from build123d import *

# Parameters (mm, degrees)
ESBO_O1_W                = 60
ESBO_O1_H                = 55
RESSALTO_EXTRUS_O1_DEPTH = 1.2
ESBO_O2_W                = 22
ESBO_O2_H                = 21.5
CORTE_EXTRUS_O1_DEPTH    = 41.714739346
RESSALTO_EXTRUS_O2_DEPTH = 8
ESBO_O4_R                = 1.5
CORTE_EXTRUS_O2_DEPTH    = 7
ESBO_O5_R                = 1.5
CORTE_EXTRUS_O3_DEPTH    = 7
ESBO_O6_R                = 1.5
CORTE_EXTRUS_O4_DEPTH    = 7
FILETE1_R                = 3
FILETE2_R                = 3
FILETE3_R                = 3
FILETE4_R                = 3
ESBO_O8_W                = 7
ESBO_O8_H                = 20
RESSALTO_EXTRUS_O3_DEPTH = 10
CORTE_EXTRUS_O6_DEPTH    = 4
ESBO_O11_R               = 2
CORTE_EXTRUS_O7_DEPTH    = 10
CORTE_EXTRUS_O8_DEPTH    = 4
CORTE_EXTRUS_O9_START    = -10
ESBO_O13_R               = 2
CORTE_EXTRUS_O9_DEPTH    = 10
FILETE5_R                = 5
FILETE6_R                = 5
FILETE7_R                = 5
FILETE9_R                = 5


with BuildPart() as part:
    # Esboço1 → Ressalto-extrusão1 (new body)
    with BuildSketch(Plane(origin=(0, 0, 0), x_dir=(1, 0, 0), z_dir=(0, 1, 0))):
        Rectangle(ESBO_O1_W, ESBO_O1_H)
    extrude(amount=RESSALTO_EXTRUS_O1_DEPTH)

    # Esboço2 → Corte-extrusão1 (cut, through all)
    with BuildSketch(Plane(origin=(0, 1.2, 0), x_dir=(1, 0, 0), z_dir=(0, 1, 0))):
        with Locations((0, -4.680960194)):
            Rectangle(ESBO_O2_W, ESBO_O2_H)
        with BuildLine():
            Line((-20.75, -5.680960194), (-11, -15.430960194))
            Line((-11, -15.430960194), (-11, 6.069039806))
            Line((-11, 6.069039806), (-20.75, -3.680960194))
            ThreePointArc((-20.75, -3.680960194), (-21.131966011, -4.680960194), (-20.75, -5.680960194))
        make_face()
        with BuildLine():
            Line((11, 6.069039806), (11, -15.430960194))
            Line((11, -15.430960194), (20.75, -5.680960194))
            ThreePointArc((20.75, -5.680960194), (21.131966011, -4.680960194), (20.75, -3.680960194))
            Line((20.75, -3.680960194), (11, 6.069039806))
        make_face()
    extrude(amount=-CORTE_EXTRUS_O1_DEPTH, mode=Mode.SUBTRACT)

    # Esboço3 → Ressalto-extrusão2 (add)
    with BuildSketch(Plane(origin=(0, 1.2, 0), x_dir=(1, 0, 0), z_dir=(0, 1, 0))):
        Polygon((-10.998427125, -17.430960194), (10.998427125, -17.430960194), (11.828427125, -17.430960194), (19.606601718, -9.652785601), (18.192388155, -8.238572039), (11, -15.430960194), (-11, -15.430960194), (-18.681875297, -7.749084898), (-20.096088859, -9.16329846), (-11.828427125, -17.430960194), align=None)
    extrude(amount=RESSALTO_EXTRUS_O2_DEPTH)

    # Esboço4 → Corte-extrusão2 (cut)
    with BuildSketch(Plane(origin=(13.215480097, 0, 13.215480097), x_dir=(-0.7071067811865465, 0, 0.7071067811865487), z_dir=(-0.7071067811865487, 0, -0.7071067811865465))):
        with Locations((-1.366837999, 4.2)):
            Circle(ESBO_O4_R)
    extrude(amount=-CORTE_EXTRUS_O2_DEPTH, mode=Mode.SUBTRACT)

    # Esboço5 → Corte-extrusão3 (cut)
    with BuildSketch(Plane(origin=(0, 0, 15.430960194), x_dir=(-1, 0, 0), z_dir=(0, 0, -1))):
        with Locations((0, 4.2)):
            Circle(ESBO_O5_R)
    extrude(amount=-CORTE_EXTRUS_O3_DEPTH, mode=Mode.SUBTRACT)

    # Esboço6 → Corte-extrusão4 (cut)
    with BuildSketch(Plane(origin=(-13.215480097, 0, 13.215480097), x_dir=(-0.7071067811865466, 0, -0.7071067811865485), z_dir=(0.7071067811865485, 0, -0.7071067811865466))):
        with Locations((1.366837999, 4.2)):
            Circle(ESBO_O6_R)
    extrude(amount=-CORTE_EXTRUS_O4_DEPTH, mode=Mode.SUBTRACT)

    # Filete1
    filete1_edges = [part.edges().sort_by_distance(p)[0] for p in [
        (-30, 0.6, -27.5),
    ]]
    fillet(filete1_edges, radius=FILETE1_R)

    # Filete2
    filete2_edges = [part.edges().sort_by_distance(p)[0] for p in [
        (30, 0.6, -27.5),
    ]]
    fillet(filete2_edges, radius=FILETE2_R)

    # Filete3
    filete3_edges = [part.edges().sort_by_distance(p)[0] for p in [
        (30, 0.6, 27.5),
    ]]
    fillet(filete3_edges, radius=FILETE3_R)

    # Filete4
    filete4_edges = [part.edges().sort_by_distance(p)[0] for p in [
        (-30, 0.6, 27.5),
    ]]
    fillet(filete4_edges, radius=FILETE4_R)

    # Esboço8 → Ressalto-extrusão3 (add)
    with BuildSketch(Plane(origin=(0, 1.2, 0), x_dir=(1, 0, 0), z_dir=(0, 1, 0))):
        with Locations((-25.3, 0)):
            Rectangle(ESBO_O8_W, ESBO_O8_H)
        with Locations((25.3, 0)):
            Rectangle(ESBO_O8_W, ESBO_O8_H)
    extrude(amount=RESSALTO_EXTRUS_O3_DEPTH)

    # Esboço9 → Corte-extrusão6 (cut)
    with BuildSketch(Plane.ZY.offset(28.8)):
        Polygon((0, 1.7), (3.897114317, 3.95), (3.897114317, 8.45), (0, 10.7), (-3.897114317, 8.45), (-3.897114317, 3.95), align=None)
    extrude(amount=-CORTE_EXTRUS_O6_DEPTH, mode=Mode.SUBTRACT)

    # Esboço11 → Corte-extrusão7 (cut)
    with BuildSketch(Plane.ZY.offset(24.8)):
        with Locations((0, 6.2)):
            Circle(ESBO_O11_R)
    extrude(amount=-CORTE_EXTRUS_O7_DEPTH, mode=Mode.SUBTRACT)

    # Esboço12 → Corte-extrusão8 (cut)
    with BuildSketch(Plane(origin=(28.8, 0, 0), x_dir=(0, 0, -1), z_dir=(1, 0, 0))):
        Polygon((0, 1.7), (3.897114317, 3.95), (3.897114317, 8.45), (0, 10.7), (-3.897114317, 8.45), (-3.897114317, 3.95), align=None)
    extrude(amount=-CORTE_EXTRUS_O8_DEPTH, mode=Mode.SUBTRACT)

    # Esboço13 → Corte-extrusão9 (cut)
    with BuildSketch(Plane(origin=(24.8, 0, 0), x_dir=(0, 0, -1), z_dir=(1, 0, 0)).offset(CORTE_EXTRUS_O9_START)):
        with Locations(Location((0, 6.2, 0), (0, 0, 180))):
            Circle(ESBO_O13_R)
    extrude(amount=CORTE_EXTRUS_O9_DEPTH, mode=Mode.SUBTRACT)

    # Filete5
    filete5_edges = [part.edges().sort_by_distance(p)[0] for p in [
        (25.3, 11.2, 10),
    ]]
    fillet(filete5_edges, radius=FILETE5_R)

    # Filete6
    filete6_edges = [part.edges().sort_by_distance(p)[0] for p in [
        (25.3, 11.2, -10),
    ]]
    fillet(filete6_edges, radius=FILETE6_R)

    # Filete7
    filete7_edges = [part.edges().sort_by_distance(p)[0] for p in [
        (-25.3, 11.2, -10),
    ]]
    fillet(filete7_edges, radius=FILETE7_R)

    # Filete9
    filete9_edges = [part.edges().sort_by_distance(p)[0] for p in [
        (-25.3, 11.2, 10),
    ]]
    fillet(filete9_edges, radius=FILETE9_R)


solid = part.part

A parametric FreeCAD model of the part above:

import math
import FreeCAD as App
import Part
import Sketcher
Q = App.Units.Quantity


def edges_at(feature, points):
    """Names of the edges that pass closest to the given points."""
    edges = feature.Shape.Edges
    near = lambda p: min(range(len(edges)), key=lambda i: edges[i].distToShape(Part.Vertex(*p))[0])
    return sorted({f"Edge{near(p) + 1}" for p in points})


def add_polygon(sketch, points):
    """Adds a closed chain of lines whose ends are joined by coincident constraints."""
    first, n = sketch.GeometryCount, len(points)
    for a, b in zip(points, points[1:] + points[:1]):
        sketch.addGeometry(Part.LineSegment(App.Vector(*a, 0), App.Vector(*b, 0)), False)
    for i in range(n):
        sketch.addConstraint(Sketcher.Constraint("Coincident", first + i, 2, first + (i + 1) % n, 1))

doc = App.newDocument("Part")
body = doc.addObject("PartDesign::Body", "Body")

# Sketch on XZ plane
sketch1 = body.newObject("Sketcher::SketchObject", "Sketch")
sketch1.AttachmentSupport = (doc.getObject("XZ_Plane"), [""])
sketch1.MapMode = "FlatFace"
add_polygon(sketch1, [(-30, -27.5), (-30, 27.5), (30, 27.5), (30, -27.5)])  # lines 0-3
sketch1.addConstraint([
    Sketcher.Constraint("Vertical", 0),
    Sketcher.Constraint("Horizontal", 1),
    Sketcher.Constraint("Vertical", 2),
    Sketcher.Constraint("Horizontal", 3),
    Sketcher.Constraint("Symmetric", 0, 2, 2, 2, -1, 1),
    Sketcher.Constraint("DistanceX", 1, 1, 1, 2, 60.0),
    Sketcher.Constraint("DistanceY", 0, 1, 0, 2, 55.0),
])
pad1 = body.newObject("PartDesign::Pad", "Pad")
pad1.Profile = sketch1
pad1.Length = 1.2
pad1.Reversed = True

# Sketch on XZ plane
sketch2 = body.newObject("Sketcher::SketchObject", "Sketch001")
sketch2.AttachmentSupport = (doc.getObject("XZ_Plane"), [""])
sketch2.MapMode = "FlatFace"
sketch2.AttachmentOffset = App.Placement(App.Vector(0, 0, -1.2), App.Rotation())
sketch2.addGeometry([
    Part.LineSegment(App.Vector(-11, 15.43096, 0), App.Vector(11, 15.43096, 0)),  # 0
    Part.LineSegment(App.Vector(11, 15.43096, 0), App.Vector(20.75, 5.68096, 0)),  # 1
    Part.ArcOfCircle(Part.Circle(App.Vector(19.631966, 4.68096, 0), App.Vector(0, 0, 1), 1.5), math.radians(-41.810315), math.radians(41.810315)),  # 2
    Part.LineSegment(App.Vector(20.75, 3.68096, 0), App.Vector(11, -6.06904, 0)),  # 3
    Part.LineSegment(App.Vector(11, -6.06904, 0), App.Vector(-11, -6.06904, 0)),  # 4
    Part.LineSegment(App.Vector(-11, -6.06904, 0), App.Vector(-20.75, 3.68096, 0)),  # 5
    Part.ArcOfCircle(Part.Circle(App.Vector(-19.631966, 4.68096, 0), App.Vector(0, 0, 1), 1.5), math.radians(138.189685), math.radians(221.810315)),  # 6
    Part.LineSegment(App.Vector(-20.75, 5.68096, 0), App.Vector(-11, 15.43096, 0)),  # 7
], False)
sketch2.addConstraint([
    Sketcher.Constraint("Coincident", 0, 2, 1, 1),
    Sketcher.Constraint("Coincident", 1, 2, 2, 2),
    Sketcher.Constraint("Coincident", 2, 1, 3, 1),
    Sketcher.Constraint("Coincident", 3, 2, 4, 1),
    Sketcher.Constraint("Coincident", 4, 2, 5, 1),
    Sketcher.Constraint("Coincident", 5, 2, 6, 2),
    Sketcher.Constraint("Coincident", 6, 1, 7, 1),
    Sketcher.Constraint("Coincident", 7, 2, 0, 1),
    Sketcher.Constraint("Horizontal", 0),
    Sketcher.Constraint("Horizontal", 4),
    Sketcher.Constraint("Equal", 2, 6),
    Sketcher.Constraint("Symmetric", 2, 3, 6, 3, -2),
    Sketcher.Constraint("Perpendicular", 1, 3),
    Sketcher.Constraint("Perpendicular", 3, 5),
    Sketcher.Constraint("Perpendicular", 5, 7),
    Sketcher.Constraint("Horizontal", 2, 1, 5, 2),
    Sketcher.Constraint("Horizontal", 1, 2, 6, 1),
    Sketcher.Constraint("Vertical", 1, 2, 2, 1),
    Sketcher.Constraint("Vertical", 0, 2, 3, 2),
    Sketcher.Constraint("Vertical", 4, 2, 7, 2),
    Sketcher.Constraint("Radius", 2, 1.5),
    Sketcher.Constraint("DistanceX", 0, 1, 0, 2, 22.0),
    Sketcher.Constraint("DistanceY", 2, 3, 1, 2, 1.0),
    Sketcher.Constraint("DistanceY", 3, 2, 0, 2, 21.5),
    Sketcher.Constraint("DistanceY", -1, 1, 2, 3, 4.68096),
])
pocket1 = body.newObject("PartDesign::Pocket", "Pocket")
pocket1.Profile = sketch2
pocket1.Type = "ThroughAll"
pocket1.Reversed = True

# Sketch on XZ plane
sketch3 = body.newObject("Sketcher::SketchObject", "Sketch002")
sketch3.AttachmentSupport = (doc.getObject("XZ_Plane"), [""])
sketch3.MapMode = "FlatFace"
sketch3.AttachmentOffset = App.Placement(App.Vector(0, 0, -1.2), App.Rotation())
add_polygon(sketch3, [(11.828427, 17.43096), (19.606602, 9.652786), (18.192388, 8.238572), (11, 15.43096), (-11, 15.43096), (-18.681875, 7.749085), (-20.096089, 9.163298), (-11.828427, 17.43096)])  # lines 0-7
sketch3.addConstraint([
    Sketcher.Constraint("Horizontal", 3),
    Sketcher.Constraint("Horizontal", 7),
    Sketcher.Constraint("Perpendicular", 0, 1),
    Sketcher.Constraint("Perpendicular", 1, 2),
    Sketcher.Constraint("Perpendicular", 2, 4),
    Sketcher.Constraint("Perpendicular", 4, 5),
    Sketcher.Constraint("Perpendicular", 5, 6),
    Sketcher.Constraint("Equal", 1, 5),
    Sketcher.Constraint("DistanceX", 3, 2, 3, 1, 22.0),
    Sketcher.Constraint("Angle", 0, Q("-45 deg")),
    Sketcher.Constraint("Distance", 0, 11.0),
    Sketcher.Constraint("Distance", 1, 2.0),
    Sketcher.Constraint("DistanceX", -1, 1, 2, 2, 11.0),
    Sketcher.Constraint("DistanceY", 3, 2, 6, 2, 2.0),
    Sketcher.Constraint("DistanceY", -1, 1, 5, 2, 9.163298),
    Sketcher.Constraint("DistanceY", 4, 2, 0, 2, 1.903701),
])
pad2 = body.newObject("PartDesign::Pad", "Pad001")
pad2.Profile = sketch3
pad2.Length = 8
pad2.Reversed = True

# Sketch on an angled plane
sketch4 = body.newObject("Sketcher::SketchObject", "Sketch003")
sketch4.Placement = App.Placement(App.Vector(13.21548, 0, 13.21548), App.Rotation(App.Vector(-0.707106781, 0, 0.707106781), App.Vector(0, 0.999999999, 0), App.Vector(-0.707106781, 0, -0.707106781), "ZXY"))
sketch4.addGeometry(Part.Circle(App.Vector(-1.366838, 4.2, 0), App.Vector(0, 0, 1), 1.5), False)
sketch4.addConstraint([
    Sketcher.Constraint("Diameter", 0, 3.0),
    Sketcher.Constraint("DistanceY", -1, 1, 0, 3, 4.2),
    Sketcher.Constraint("DistanceX", 0, 3, -1, 1, 1.366838),
])
pocket2 = body.newObject("PartDesign::Pocket", "Pocket001")
pocket2.Profile = sketch4
pocket2.Length = 7

# Sketch on XY plane
sketch5 = body.newObject("Sketcher::SketchObject", "Sketch004")
sketch5.AttachmentSupport = (doc.getObject("XY_Plane"), [""])
sketch5.MapMode = "FlatFace"
sketch5.AttachmentOffset = App.Placement(App.Vector(0, 0, 15.43096), App.Rotation())
sketch5.addGeometry(Part.Circle(App.Vector(0, 4.2, 0), App.Vector(0, 0, 1), 1.5), False)
sketch5.addConstraint([
    Sketcher.Constraint("PointOnObject", 0, 3, -2),
    Sketcher.Constraint("Diameter", 0, 3.0),
    Sketcher.Constraint("DistanceY", -1, 1, 0, 3, 4.2),
])
pocket3 = body.newObject("PartDesign::Pocket", "Pocket002")
pocket3.Profile = sketch5
pocket3.Length = 7
pocket3.Reversed = True

# Sketch on an angled plane
sketch6 = body.newObject("Sketcher::SketchObject", "Sketch005")
sketch6.Placement = App.Placement(App.Vector(-13.21548, 0, 13.21548), App.Rotation(App.Vector(-0.707106781, 0, -0.707106781), App.Vector(0, 0.999999999, 0), App.Vector(0.707106781, 0, -0.707106781), "ZXY"))
sketch6.addGeometry(Part.Circle(App.Vector(1.366838, 4.2, 0), App.Vector(0, 0, 1), 1.5), False)
sketch6.addConstraint([
    Sketcher.Constraint("Diameter", 0, 3.0),
    Sketcher.Constraint("DistanceY", -1, 1, 0, 3, 4.2),
    Sketcher.Constraint("DistanceX", -1, 1, 0, 3, 1.366838),
])
pocket4 = body.newObject("PartDesign::Pocket", "Pocket003")
pocket4.Profile = sketch6
pocket4.Length = 7
doc.recompute()

fillet = body.newObject("PartDesign::Fillet", "Fillet")
fillet.Base = (pocket4, edges_at(pocket4, [(-30, 0.6, -27.5)]))
fillet.Radius = 3
doc.recompute()

fillet2 = body.newObject("PartDesign::Fillet", "Fillet001")
fillet2.Base = (fillet, edges_at(fillet, [(30, 0.6, -27.5)]))
fillet2.Radius = 3
doc.recompute()

fillet3 = body.newObject("PartDesign::Fillet", "Fillet002")
fillet3.Base = (fillet2, edges_at(fillet2, [(30, 0.6, 27.5)]))
fillet3.Radius = 3
doc.recompute()

fillet4 = body.newObject("PartDesign::Fillet", "Fillet003")
fillet4.Base = (fillet3, edges_at(fillet3, [(-30, 0.6, 27.5)]))
fillet4.Radius = 3

# Sketch on XZ plane
sketch7 = body.newObject("Sketcher::SketchObject", "Sketch006")
sketch7.AttachmentSupport = (doc.getObject("XZ_Plane"), [""])
sketch7.MapMode = "FlatFace"
sketch7.AttachmentOffset = App.Placement(App.Vector(0, 0, -1.2), App.Rotation())
add_polygon(sketch7, [(-28.8, -10), (-28.8, 10), (-21.8, 10), (-21.8, -10)])  # lines 0-3
add_polygon(sketch7, [(21.8, -10), (21.8, 10), (28.8, 10), (28.8, -10)])  # lines 4-7
sketch7.addConstraint([
    Sketcher.Constraint("Vertical", 0),
    Sketcher.Constraint("Horizontal", 1),
    Sketcher.Constraint("Vertical", 2),
    Sketcher.Constraint("Horizontal", 3),
    Sketcher.Constraint("Vertical", 4),
    Sketcher.Constraint("Horizontal", 5),
    Sketcher.Constraint("Vertical", 6),
    Sketcher.Constraint("Horizontal", 7),
    Sketcher.Constraint("Symmetric", 2, 2, 4, 2, -1, 1),
    Sketcher.Constraint("Symmetric", 0, 2, 6, 2, -1, 1),
    Sketcher.Constraint("Horizontal", 1, 2, 4, 2),
    Sketcher.Constraint("DistanceX", 1, 1, 1, 2, 7.0),
    Sketcher.Constraint("DistanceY", 0, 1, 0, 2, 20.0),
    Sketcher.Constraint("DistanceX", 0, 2, -1, 1, 28.8),
])
pad3 = body.newObject("PartDesign::Pad", "Pad002")
pad3.Profile = sketch7
pad3.Length = 10
pad3.Reversed = True

# Sketch on YZ plane
sketch8 = body.newObject("Sketcher::SketchObject", "Sketch007")
sketch8.AttachmentSupport = (doc.getObject("YZ_Plane"), [""])
sketch8.MapMode = "FlatFace"
sketch8.AttachmentOffset = App.Placement(App.Vector(0, 0, -28.8), App.Rotation())
add_polygon(sketch8, [(1.7, 0), (3.95, 3.897114), (8.45, 3.897114), (10.7, 0), (8.45, -3.897114), (3.95, -3.897114)])  # lines 0-5
sketch8.addConstraint([
    Sketcher.Constraint("Horizontal", 1),
    Sketcher.Constraint("Horizontal", 4),
    Sketcher.Constraint("Symmetric", 1, 2, 3, 2, -1),
    Sketcher.Constraint("PointOnObject", 2, 2, -1),
    Sketcher.Constraint("PointOnObject", 5, 2, -1),
    Sketcher.Constraint("Parallel", 0, 3),
    Sketcher.Constraint("Parallel", 2, 5),
    Sketcher.Constraint("Angle", 0, Q("60 deg")),
    Sketcher.Constraint("DistanceX", 1, 1, 1, 2, 4.5),
    Sketcher.Constraint("DistanceX", 5, 2, 2, 2, 9.0),
    Sketcher.Constraint("DistanceX", -1, 1, 2, 2, 10.7),
])
pocket5 = body.newObject("PartDesign::Pocket", "Pocket004")
pocket5.Profile = sketch8
pocket5.Length = 4
pocket5.Reversed = True

# Sketch on YZ plane
sketch9 = body.newObject("Sketcher::SketchObject", "Sketch008")
sketch9.AttachmentSupport = (doc.getObject("YZ_Plane"), [""])
sketch9.MapMode = "FlatFace"
sketch9.AttachmentOffset = App.Placement(App.Vector(0, 0, -24.8), App.Rotation())
sketch9.addGeometry(Part.Circle(App.Vector(6.2, 0, 0), App.Vector(0, 0, 1), 2), False)
sketch9.addConstraint([
    Sketcher.Constraint("PointOnObject", 0, 3, -1),
    Sketcher.Constraint("Diameter", 0, 4.0),
    Sketcher.Constraint("DistanceX", -1, 1, 0, 3, 6.2),
])
pocket6 = body.newObject("PartDesign::Pocket", "Pocket005")
pocket6.Profile = sketch9
pocket6.Length = 10
pocket6.Reversed = True

# Sketch on YZ plane
sketch10 = body.newObject("Sketcher::SketchObject", "Sketch009")
sketch10.AttachmentSupport = (doc.getObject("YZ_Plane"), [""])
sketch10.MapMode = "FlatFace"
sketch10.AttachmentOffset = App.Placement(App.Vector(0, 0, 28.8), App.Rotation())
add_polygon(sketch10, [(1.7, 0), (3.95, -3.897114), (8.45, -3.897114), (10.7, 0), (8.45, 3.897114), (3.95, 3.897114)])  # lines 0-5
sketch10.addConstraint([
    Sketcher.Constraint("Horizontal", 1),
    Sketcher.Constraint("Horizontal", 4),
    Sketcher.Constraint("Symmetric", 1, 2, 3, 2, -1),
    Sketcher.Constraint("PointOnObject", 2, 2, -1),
    Sketcher.Constraint("PointOnObject", 5, 2, -1),
    Sketcher.Constraint("Parallel", 0, 3),
    Sketcher.Constraint("Parallel", 2, 5),
    Sketcher.Constraint("Angle", 0, Q("-60 deg")),
    Sketcher.Constraint("DistanceX", 1, 1, 1, 2, 4.5),
    Sketcher.Constraint("DistanceX", 5, 2, 2, 2, 9.0),
    Sketcher.Constraint("DistanceX", -1, 1, 2, 2, 10.7),
])
pocket7 = body.newObject("PartDesign::Pocket", "Pocket006")
pocket7.Profile = sketch10
pocket7.Length = 4

# Sketch on YZ plane
sketch11 = body.newObject("Sketcher::SketchObject", "Sketch010")
sketch11.AttachmentSupport = (doc.getObject("YZ_Plane"), [""])
sketch11.MapMode = "FlatFace"
sketch11.AttachmentOffset = App.Placement(App.Vector(0, 0, 14.8), App.Rotation())
sketch11.addGeometry(Part.Circle(App.Vector(6.2, 0, 0), App.Vector(0, 0, 1), 2), False)
sketch11.addConstraint([
    Sketcher.Constraint("PointOnObject", 0, 3, -1),
    Sketcher.Constraint("Diameter", 0, 4.0),
    Sketcher.Constraint("DistanceX", -1, 1, 0, 3, 6.2),
])
pocket8 = body.newObject("PartDesign::Pocket", "Pocket007")
pocket8.Profile = sketch11
pocket8.Length = 10
pocket8.Reversed = True
doc.recompute()

fillet5 = body.newObject("PartDesign::Fillet", "Fillet004")
fillet5.Base = (pocket8, edges_at(pocket8, [(25.3, 11.2, 10)]))
fillet5.Radius = 5
doc.recompute()

fillet6 = body.newObject("PartDesign::Fillet", "Fillet005")
fillet6.Base = (fillet5, edges_at(fillet5, [(25.3, 11.2, -10)]))
fillet6.Radius = 5
doc.recompute()

fillet7 = body.newObject("PartDesign::Fillet", "Fillet006")
fillet7.Base = (fillet6, edges_at(fillet6, [(-25.3, 11.2, -10)]))
fillet7.Radius = 5
doc.recompute()

fillet8 = body.newObject("PartDesign::Fillet", "Fillet007")
fillet8.Base = (fillet7, edges_at(fillet7, [(-25.3, 11.2, 10)]))
fillet8.Radius = 5

doc.recompute()
